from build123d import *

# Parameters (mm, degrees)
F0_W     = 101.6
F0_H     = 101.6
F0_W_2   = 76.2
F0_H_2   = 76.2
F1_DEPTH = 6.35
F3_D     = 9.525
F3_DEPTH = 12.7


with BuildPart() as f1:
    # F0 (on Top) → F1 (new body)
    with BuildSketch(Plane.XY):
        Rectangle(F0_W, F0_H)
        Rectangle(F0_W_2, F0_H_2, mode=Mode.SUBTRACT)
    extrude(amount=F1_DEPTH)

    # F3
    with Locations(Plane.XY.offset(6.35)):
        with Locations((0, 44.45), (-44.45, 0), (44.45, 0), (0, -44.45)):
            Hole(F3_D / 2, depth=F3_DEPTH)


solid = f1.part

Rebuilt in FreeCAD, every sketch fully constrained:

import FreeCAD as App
import Part
import Sketcher
Q = App.Units.Quantity


def add_polygon(sketch, points):
    """Adds a closed chain of lines whose ends are joined by coincident constraints."""
    first, n = sketch.GeometryCount, len(points)
    for a, b in zip(points, points[1:] + points[:1]):
        sketch.addGeometry(Part.LineSegment(App.Vector(*a, 0), App.Vector(*b, 0)), False)
    for i in range(n):
        sketch.addConstraint(Sketcher.Constraint("Coincident", first + i, 2, first + (i + 1) % n, 1))

doc = App.newDocument("Part")
body = doc.addObject("PartDesign::Body", "Body")

# Sketch on XY plane
sketch1 = body.newObject("Sketcher::SketchObject", "Sketch")
sketch1.AttachmentSupport = (doc.getObject("XY_Plane"), [""])
sketch1.MapMode = "FlatFace"
add_polygon(sketch1, [(-51, 51), (-51, -51), (51, -51), (51, 51)])  # lines 0-3
add_polygon(sketch1, [(38, -38), (-38, -38), (-38, 38), (38, 38)])  # lines 4-7
sketch1.addConstraint([
    Sketcher.Constraint("Vertical", 0),
    Sketcher.Constraint("Horizontal", 1),
    Sketcher.Constraint("Vertical", 2),
    Sketcher.Constraint("Horizontal", 3),
    Sketcher.Constraint("Horizontal", 4),
    Sketcher.Constraint("Vertical", 5),
    Sketcher.Constraint("Horizontal", 6),
    Sketcher.Constraint("Vertical", 7),
    Sketcher.Constraint("Symmetric", 0, 2, 2, 2, -1, 1),
    Sketcher.Constraint("Symmetric", 4, 2, 6, 2, -1, 1),
    Sketcher.Constraint("Equal", 3, 0),
    Sketcher.Constraint("Equal", 6, 5),
    Sketcher.Constraint("DistanceX", 1, 1, 1, 2, Q("4 in")),
    Sketcher.Constraint("DistanceX", 4, 2, 4, 1, Q("3 in")),
])
pad1 = body.newObject("PartDesign::Pad", "Pad")
pad1.Profile = sketch1
pad1.Length = Q("0.25 in")

# Sketch on XY plane
sketch2 = body.newObject("Sketcher::SketchObject", "Sketch001")
sketch2.AttachmentSupport = (doc.getObject("XY_Plane"), [""])
sketch2.MapMode = "FlatFace"
sketch2.AttachmentOffset = App.Placement(App.Vector(0, 0, 0.25 * 25.4), App.Rotation())
sketch2.addGeometry([
    Part.Circle(App.Vector(0, 44.5, 0), App.Vector(0, 0, 1), 4.8),
    Part.Circle(App.Vector(-44.5, 0, 0), App.Vector(0, 0, 1), 4.8),
    Part.Circle(App.Vector(44.5, 0, 0), App.Vector(0, 0, 1), 4.8),
    Part.Circle(App.Vector(0, -44.5, 0), App.Vector(0, 0, 1), 4.8),
], False)
sketch2.addConstraint([
    Sketcher.Constraint("Equal", 0, 1),
    Sketcher.Constraint("Equal", 1, 2),
    Sketcher.Constraint("Equal", 2, 3),
    Sketcher.Constraint("Symmetric", 1, 3, 2, 3, -1, 1),
    Sketcher.Constraint("Symmetric", 0, 3, 3, 3, -1, 1),
    Sketcher.Constraint("PointOnObject", 0, 3, -2),
    Sketcher.Constraint("PointOnObject", 1, 3, -1),
    Sketcher.Constraint("Diameter", 0, Q("0.375 in")),
    Sketcher.Constraint("DistanceX", 1, 3, 2, 3, Q("3.5 in")),
    Sketcher.Constraint("DistanceY", 3, 3, 0, 3, Q("3.5 in")),
])
doc.recompute()
hole = body.newObject("PartDesign::Hole", "Hole")
hole.Profile = sketch2
hole.ThreadType = "None"
hole.Diameter = Q("0.375 in")
hole.DepthType = "Dimension"
hole.Depth = Q("0.5 in")
hole.DrillPoint = "Flat"

doc.recompute()
